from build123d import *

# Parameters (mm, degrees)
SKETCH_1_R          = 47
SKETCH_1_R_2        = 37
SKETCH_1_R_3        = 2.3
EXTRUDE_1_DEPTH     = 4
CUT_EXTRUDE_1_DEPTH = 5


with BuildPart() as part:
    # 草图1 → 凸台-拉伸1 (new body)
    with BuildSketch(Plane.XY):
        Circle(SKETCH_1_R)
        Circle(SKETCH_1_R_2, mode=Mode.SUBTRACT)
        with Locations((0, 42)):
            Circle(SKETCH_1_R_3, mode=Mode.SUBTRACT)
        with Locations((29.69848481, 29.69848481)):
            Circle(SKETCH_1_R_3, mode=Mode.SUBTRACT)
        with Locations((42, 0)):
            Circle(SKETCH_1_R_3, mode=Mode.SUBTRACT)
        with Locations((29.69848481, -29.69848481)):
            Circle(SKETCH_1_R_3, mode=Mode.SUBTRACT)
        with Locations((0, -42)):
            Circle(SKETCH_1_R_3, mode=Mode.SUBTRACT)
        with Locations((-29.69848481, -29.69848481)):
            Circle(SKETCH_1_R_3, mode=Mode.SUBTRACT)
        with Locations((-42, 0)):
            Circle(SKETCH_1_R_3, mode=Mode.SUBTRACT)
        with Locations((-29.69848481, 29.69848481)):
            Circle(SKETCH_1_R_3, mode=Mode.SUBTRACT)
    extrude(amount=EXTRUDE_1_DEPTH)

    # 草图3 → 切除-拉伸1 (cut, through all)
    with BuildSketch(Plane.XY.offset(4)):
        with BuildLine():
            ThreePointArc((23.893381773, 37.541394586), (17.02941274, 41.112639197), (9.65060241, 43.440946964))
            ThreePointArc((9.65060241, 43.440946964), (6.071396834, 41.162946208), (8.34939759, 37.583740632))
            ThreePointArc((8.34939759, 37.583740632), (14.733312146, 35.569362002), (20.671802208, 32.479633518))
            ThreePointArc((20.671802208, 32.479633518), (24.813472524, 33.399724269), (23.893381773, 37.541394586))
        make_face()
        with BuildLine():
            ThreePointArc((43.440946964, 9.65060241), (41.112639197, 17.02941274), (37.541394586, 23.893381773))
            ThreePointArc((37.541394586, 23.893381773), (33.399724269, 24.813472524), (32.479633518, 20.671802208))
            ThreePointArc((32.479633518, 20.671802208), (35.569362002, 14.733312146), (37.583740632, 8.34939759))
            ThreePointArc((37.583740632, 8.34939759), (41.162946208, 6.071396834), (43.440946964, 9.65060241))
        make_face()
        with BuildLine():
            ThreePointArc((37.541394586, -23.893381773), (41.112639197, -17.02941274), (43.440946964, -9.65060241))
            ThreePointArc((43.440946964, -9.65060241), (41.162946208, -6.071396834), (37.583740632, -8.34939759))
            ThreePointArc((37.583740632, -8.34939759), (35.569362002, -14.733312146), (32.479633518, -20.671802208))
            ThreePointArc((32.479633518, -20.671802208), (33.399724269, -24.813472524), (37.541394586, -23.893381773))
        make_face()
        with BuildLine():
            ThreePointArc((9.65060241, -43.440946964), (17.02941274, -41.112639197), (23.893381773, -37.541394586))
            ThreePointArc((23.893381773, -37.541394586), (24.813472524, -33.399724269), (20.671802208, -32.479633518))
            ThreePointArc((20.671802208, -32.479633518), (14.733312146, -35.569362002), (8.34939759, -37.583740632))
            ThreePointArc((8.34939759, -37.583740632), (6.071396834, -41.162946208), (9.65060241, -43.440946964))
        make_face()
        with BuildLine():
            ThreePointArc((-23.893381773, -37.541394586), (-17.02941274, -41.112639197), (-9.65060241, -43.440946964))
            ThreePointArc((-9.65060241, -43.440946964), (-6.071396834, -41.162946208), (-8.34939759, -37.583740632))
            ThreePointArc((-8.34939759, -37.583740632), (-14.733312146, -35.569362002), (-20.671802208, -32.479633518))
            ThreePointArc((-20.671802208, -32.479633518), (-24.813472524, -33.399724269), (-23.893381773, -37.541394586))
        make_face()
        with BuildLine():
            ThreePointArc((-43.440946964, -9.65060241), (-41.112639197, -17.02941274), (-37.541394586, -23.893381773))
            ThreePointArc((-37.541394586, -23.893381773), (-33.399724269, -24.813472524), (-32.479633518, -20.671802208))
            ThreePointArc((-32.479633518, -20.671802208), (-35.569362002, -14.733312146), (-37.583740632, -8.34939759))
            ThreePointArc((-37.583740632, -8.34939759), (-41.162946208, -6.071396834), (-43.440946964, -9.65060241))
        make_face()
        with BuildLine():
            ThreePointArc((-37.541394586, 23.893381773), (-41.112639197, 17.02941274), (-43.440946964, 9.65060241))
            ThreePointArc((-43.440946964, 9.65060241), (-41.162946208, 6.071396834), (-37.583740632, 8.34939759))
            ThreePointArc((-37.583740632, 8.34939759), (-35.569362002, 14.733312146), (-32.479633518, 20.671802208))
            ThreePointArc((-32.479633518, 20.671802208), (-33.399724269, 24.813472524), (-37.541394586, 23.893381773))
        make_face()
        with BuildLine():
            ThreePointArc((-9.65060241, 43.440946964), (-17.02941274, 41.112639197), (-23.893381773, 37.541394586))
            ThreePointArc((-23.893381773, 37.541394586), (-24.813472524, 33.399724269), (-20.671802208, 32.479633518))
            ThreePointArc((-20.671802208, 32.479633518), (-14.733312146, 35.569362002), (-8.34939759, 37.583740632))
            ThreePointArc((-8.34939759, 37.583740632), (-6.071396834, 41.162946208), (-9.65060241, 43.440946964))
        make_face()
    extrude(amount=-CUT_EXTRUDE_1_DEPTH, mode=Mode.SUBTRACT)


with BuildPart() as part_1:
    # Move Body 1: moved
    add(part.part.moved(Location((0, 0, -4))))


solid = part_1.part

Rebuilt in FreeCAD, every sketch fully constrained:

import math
import FreeCAD as App
import Part
import Sketcher
Q = App.Units.Quantity

doc = App.newDocument("Part")
body = doc.addObject("PartDesign::Body", "Body")

# Sketch on XY plane
sketch1 = doc.addObject("Sketcher::SketchObject", "Sketch")
body.addObject(sketch1)
sketch1.AttachmentSupport = (doc.XY_Plane, [""])
sketch1.MapMode = "FlatFace"
sketch1.addGeometry([
    Part.Circle(App.Vector(0, 0, 0), App.Vector(0, 0, 1), 47),  # 0
    Part.Circle(App.Vector(-29.7, -29.7, 0), App.Vector(0, 0, 1), 2.3),  # 1
    Part.Circle(App.Vector(0, -42, 0), App.Vector(0, 0, 1), 2.3),  # 2
    Part.Circle(App.Vector(29.7, -29.7, 0), App.Vector(0, 0, 1), 2.3),  # 3
    Part.Circle(App.Vector(-42, 0, 0), App.Vector(0, 0, 1), 2.3),  # 4
    Part.Circle(App.Vector(-29.7, 29.7, 0), App.Vector(0, 0, 1), 2.3),  # 5
    Part.Circle(App.Vector(0, 0, 0), App.Vector(0, 0, 1), 37),  # 6
    Part.Circle(App.Vector(42, 0, 0), App.Vector(0, 0, 1), 2.3),  # 7
    Part.Circle(App.Vector(0, 42, 0), App.Vector(0, 0, 1), 2.3),  # 8
    Part.Circle(App.Vector(29.7, 29.7, 0), App.Vector(0, 0, 1), 2.3),  # 9
], False)
sketch1.addConstraint([
    Sketcher.Constraint("Coincident", 0, 3, -1, 1),
    Sketcher.Constraint("Coincident", 6, 3, -1, 1),
    Sketcher.Constraint("Equal", 1, 2),
    Sketcher.Constraint("Equal", 2, 3),
    Sketcher.Constraint("Equal", 3, 4),
    Sketcher.Constraint("Equal", 4, 5),
    Sketcher.Constraint("Equal", 5, 7),
    Sketcher.Constraint("Equal", 7, 8),
    Sketcher.Constraint("Equal", 8, 9),
    Sketcher.Constraint("Symmetric", 3, 3, 5, 3, -1, 1),
    Sketcher.Constraint("Symmetric", 4, 3, 7, 3, -1, 1),
    Sketcher.Constraint("Symmetric", 2, 3, 8, 3, -1, 1),
    Sketcher.Constraint("Symmetric", 1, 3, 9, 3, -1, 1),
    Sketcher.Constraint("Symmetric", 1, 3, 3, 3, -2),
    Sketcher.Constraint("PointOnObject", 2, 3, -2),
    Sketcher.Constraint("PointOnObject", 4, 3, -1),
    Sketcher.Constraint("Diameter", 0, Q("94 mm")),
    Sketcher.Constraint("Diameter", 6, Q("74 mm")),
    Sketcher.Constraint("Diameter", 1, Q("4.6 mm")),
    Sketcher.Constraint("DistanceY", 2, 3, -1, 1, Q("42 mm")),
    Sketcher.Constraint("DistanceX", 4, 3, -1, 1, Q("42 mm")),
    Sketcher.Constraint("DistanceX", 1, 3, 3, 3, Q("59.39697 mm")),
    Sketcher.Constraint("DistanceY", 1, 3, 5, 3, Q("59.39697 mm")),
])
pad1 = doc.addObject("PartDesign::Pad", "Pad")
body.addObject(pad1)
pad1.Profile = sketch1
pad1.Length = 4

# Sketch on XY plane
sketch2 = doc.addObject("Sketcher::SketchObject", "Sketch001")
body.addObject(sketch2)
sketch2.AttachmentSupport = (doc.XY_Plane, [""])
sketch2.MapMode = "FlatFace"
sketch2.AttachmentOffset = App.Placement(App.Vector(0, 0, 4), App.Rotation())
sketch2.addGeometry([
    Part.ArcOfCircle(Part.Circle(App.Vector(0, 0, 0), App.Vector(0, 0, 1), 44.5), math.radians(57.53), math.radians(77.47)),  # 0
    Part.ArcOfCircle(Part.Circle(App.Vector(9, 40.5, 0), App.Vector(0, 0, 1), 3), math.radians(77), math.radians(257)),  # 1
    Part.ArcOfCircle(Part.Circle(App.Vector(0, 0, 0), App.Vector(0, 0, 1), 38.5), math.radians(57.53), math.radians(77.47)),  # 2
    Part.ArcOfCircle(Part.Circle(App.Vector(22.3, 35, 0), App.Vector(0, 0, 1), 3), math.radians(-122), math.radians(58)),  # 3
    Part.ArcOfCircle(Part.Circle(App.Vector(0, 0, 0), App.Vector(0, 0, 1), 44.5), math.radians(12.53), math.radians(32.47)),  # 4
    Part.ArcOfCircle(Part.Circle(App.Vector(35, 22.3, 0), App.Vector(0, 0, 1), 3), math.radians(32), math.radians(212)),  # 5
    Part.ArcOfCircle(Part.Circle(App.Vector(0, 0, 0), App.Vector(0, 0, 1), 38.5), math.radians(12.53), math.radians(32.47)),  # 6
    Part.ArcOfCircle(Part.Circle(App.Vector(40.5, 9, 0), App.Vector(0, 0, 1), 3), math.radians(-167), math.radians(13)),  # 7
    Part.ArcOfCircle(Part.Circle(App.Vector(0, 0, 0), App.Vector(0, 0, 1), 44.5), math.radians(-32.47), math.radians(-12.53)),  # 8
    Part.ArcOfCircle(Part.Circle(App.Vector(40.5, -9, 0), App.Vector(0, 0, 1), 3), math.radians(-13), math.radians(167)),  # 9
    Part.ArcOfCircle(Part.Circle(App.Vector(0, 0, 0), App.Vector(0, 0, 1), 38.5), math.radians(-32.47), math.radians(-12.53)),  # 10
    Part.ArcOfCircle(Part.Circle(App.Vector(35, -22.3, 0), App.Vector(0, 0, 1), 3), math.radians(148), math.radians(328)),  # 11
    Part.ArcOfCircle(Part.Circle(App.Vector(0, 0, 0), App.Vector(0, 0, 1), 44.5), math.radians(-77.47), math.radians(-57.53)),  # 12
    Part.ArcOfCircle(Part.Circle(App.Vector(22.3, -35, 0), App.Vector(0, 0, 1), 3), math.radians(-58), math.radians(122)),  # 13
    Part.ArcOfCircle(Part.Circle(App.Vector(0, 0, 0), App.Vector(0, 0, 1), 38.5), math.radians(-77.47), math.radians(-57.53)),  # 14
    Part.ArcOfCircle(Part.Circle(App.Vector(9, -40.5, 0), App.Vector(0, 0, 1), 3), math.radians(103), math.radians(283)),  # 15
    Part.ArcOfCircle(Part.Circle(App.Vector(0, 0, 0), App.Vector(0, 0, 1), 44.5), math.radians(-122.47), math.radians(-102.53)),  # 16
    Part.ArcOfCircle(Part.Circle(App.Vector(-9, -40.5, 0), App.Vector(0, 0, 1), 3), math.radians(-103), math.radians(77)),  # 17
    Part.ArcOfCircle(Part.Circle(App.Vector(0, 0, 0), App.Vector(0, 0, 1), 38.5), math.radians(-122.47), math.radians(-102.53)),  # 18
    Part.ArcOfCircle(Part.Circle(App.Vector(-22.3, -35, 0), App.Vector(0, 0, 1), 3), math.radians(58), math.radians(238)),  # 19
    Part.ArcOfCircle(Part.Circle(App.Vector(0, 0, 0), App.Vector(0, 0, 1), 44.5), math.radians(-167.47), math.radians(-147.53)),  # 20
    Part.ArcOfCircle(Part.Circle(App.Vector(-35, -22.3, 0), App.Vector(0, 0, 1), 3), math.radians(-148), math.radians(32)),  # 21
    Part.ArcOfCircle(Part.Circle(App.Vector(0, 0, 0), App.Vector(0, 0, 1), 38.5), math.radians(-167.47), math.radians(-147.53)),  # 22
    Part.ArcOfCircle(Part.Circle(App.Vector(-40.5, -9, 0), App.Vector(0, 0, 1), 3), math.radians(13), math.radians(193)),  # 23
    Part.ArcOfCircle(Part.Circle(App.Vector(0, 0, 0), App.Vector(0, 0, 1), 44.5), math.radians(147.53), math.radians(167.47)),  # 24
    Part.ArcOfCircle(Part.Circle(App.Vector(-40.5, 9, 0), App.Vector(0, 0, 1), 3), math.radians(167), math.radians(347)),  # 25
    Part.ArcOfCircle(Part.Circle(App.Vector(0, 0, 0), App.Vector(0, 0, 1), 38.5), math.radians(147.53), math.radians(167.47)),  # 26
    Part.ArcOfCircle(Part.Circle(App.Vector(-35, 22.3, 0), App.Vector(0, 0, 1), 3), math.radians(-32), math.radians(148)),  # 27
    Part.ArcOfCircle(Part.Circle(App.Vector(0, 0, 0), App.Vector(0, 0, 1), 44.5), math.radians(102.53), math.radians(122.47)),  # 28
    Part.ArcOfCircle(Part.Circle(App.Vector(-22.3, 35, 0), App.Vector(0, 0, 1), 3), math.radians(122), math.radians(302)),  # 29
    Part.ArcOfCircle(Part.Circle(App.Vector(0, 0, 0), App.Vector(0, 0, 1), 38.5), math.radians(102.53), math.radians(122.47)),  # 30
    Part.ArcOfCircle(Part.Circle(App.Vector(-9, 40.5, 0), App.Vector(0, 0, 1), 3), math.radians(-77), math.radians(103)),  # 31
], False)
sketch2.addConstraint([
    Sketcher.Constraint("Tangent", 0, 2, 1, 1),
    Sketcher.Constraint("Tangent", 1, 2, 2, 2),
    Sketcher.Constraint("Tangent", 2, 1, 3, 1),
    Sketcher.Constraint("Tangent", 3, 2, 0, 1),
    Sketcher.Constraint("Tangent", 4, 2, 5, 1),
    Sketcher.Constraint("Tangent", 5, 2, 6, 2),
    Sketcher.Constraint("Tangent", 6, 1, 7, 1),
    Sketcher.Constraint("Tangent", 7, 2, 4, 1),
    Sketcher.Constraint("Tangent", 8, 2, 9, 1),
    Sketcher.Constraint("Tangent", 9, 2, 10, 2),
    Sketcher.Constraint("Tangent", 10, 1, 11, 1),
    Sketcher.Constraint("Tangent", 11, 2, 8, 1),
    Sketcher.Constraint("Tangent", 12, 2, 13, 1),
    Sketcher.Constraint("Tangent", 13, 2, 14, 2),
    Sketcher.Constraint("Tangent", 14, 1, 15, 1),
    Sketcher.Constraint("Tangent", 15, 2, 12, 1),
    Sketcher.Constraint("Tangent", 16, 2, 17, 1),
    Sketcher.Constraint("Tangent", 17, 2, 18, 2),
    Sketcher.Constraint("Tangent", 18, 1, 19, 1),
    Sketcher.Constraint("Tangent", 19, 2, 16, 1),
    Sketcher.Constraint("Tangent", 20, 2, 21, 1),
    Sketcher.Constraint("Tangent", 21, 2, 22, 2),
    Sketcher.Constraint("Tangent", 22, 1, 23, 1),
    Sketcher.Constraint("Tangent", 23, 2, 20, 1),
    Sketcher.Constraint("Tangent", 24, 2, 25, 1),
    Sketcher.Constraint("Tangent", 25, 2, 26, 2),
    Sketcher.Constraint("Tangent", 26, 1, 27, 1),
    Sketcher.Constraint("Tangent", 27, 2, 24, 1),
    Sketcher.Constraint("Tangent", 28, 2, 29, 1),
    Sketcher.Constraint("Tangent", 29, 2, 30, 2),
    Sketcher.Constraint("Tangent", 30, 1, 31, 1),
    Sketcher.Constraint("Tangent", 31, 2, 28, 1),
    Sketcher.Constraint("Coincident", 0, 3, -1, 1),
    Sketcher.Constraint("Coincident", 2, 3, -1, 1),
    Sketcher.Constraint("Coincident", 4, 3, -1, 1),
    Sketcher.Constraint("Coincident", 6, 3, -1, 1),
    Sketcher.Constraint("Coincident", 8, 3, -1, 1),
    Sketcher.Constraint("Coincident", 10, 3, -1, 1),
    Sketcher.Constraint("Coincident", 12, 3, -1, 1),
    Sketcher.Constraint("Coincident", 14, 3, -1, 1),
    Sketcher.Constraint("Coincident", 16, 3, -1, 1),
    Sketcher.Constraint("Coincident", 18, 3, -1, 1),
    Sketcher.Constraint("Coincident", 20, 3, -1, 1),
    Sketcher.Constraint("Coincident", 22, 3, -1, 1),
    Sketcher.Constraint("Coincident", 24, 3, -1, 1),
    Sketcher.Constraint("Coincident", 26, 3, -1, 1),
    Sketcher.Constraint("Coincident", 28, 3, -1, 1),
    Sketcher.Constraint("Coincident", 30, 3, -1, 1),
    Sketcher.Constraint("Equal", 0, 4),
    Sketcher.Constraint("Equal", 3, 5),
    Sketcher.Constraint("Equal", 4, 8),
    Sketcher.Constraint("Equal", 7, 9),
    Sketcher.Constraint("Equal", 8, 12),
    Sketcher.Constraint("Equal", 11, 13),
    Sketcher.Constraint("Equal", 12, 16),
    Sketcher.Constraint("Equal", 15, 17),
    Sketcher.Constraint("Equal", 16, 20),
    Sketcher.Constraint("Equal", 19, 21),
    Sketcher.Constraint("Equal", 20, 24),
    Sketcher.Constraint("Equal", 23, 25),
    Sketcher.Constraint("Equal", 24, 28),
    Sketcher.Constraint("Equal", 27, 29),
    Sketcher.Constraint("Horizontal", 15, 3, 17, 3),
    Sketcher.Constraint("Horizontal", 13, 3, 19, 3),
    Sketcher.Constraint("Horizontal", 11, 3, 21, 3),
    Sketcher.Constraint("Horizontal", 9, 3, 23, 3),
    Sketcher.Constraint("Horizontal", 7, 3, 25, 3),
    Sketcher.Constraint("Horizontal", 5, 3, 27, 3),
    Sketcher.Constraint("Horizontal", 3, 3, 29, 3),
    Sketcher.Constraint("Horizontal", 1, 3, 31, 3),
    Sketcher.Constraint("Vertical", 7, 3, 9, 3),
    Sketcher.Constraint("Vertical", 5, 3, 11, 3),
    Sketcher.Constraint("Vertical", 3, 3, 13, 3),
    Sketcher.Constraint("Vertical", 1, 3, 15, 3),
    Sketcher.Constraint("Radius", 1, Q("3 mm")),
    Sketcher.Constraint("Radius", 0, Q("44.5 mm")),
    Sketcher.Constraint("DistanceX", -1, 1, 1, 3, Q("9 mm")),
    Sketcher.Constraint("DistanceY", -1, 1, 7, 3, Q("9 mm")),
    Sketcher.Constraint("DistanceX", -1, 1, 3, 3, Q("22.282592 mm")),
    Sketcher.Constraint("DistanceY", -1, 1, 5, 3, Q("22.282592 mm")),
])
pocket1 = doc.addObject("PartDesign::Pocket", "Pocket")
body.addObject(pocket1)
pocket1.Profile = sketch2
pocket1.Type = "ThroughAll"
body2 = doc.addObject("PartDesign::Body", "Body001")
doc.recompute()

body.Placement = App.Placement(App.Vector(0, 0, -4), App.Rotation(App.Vector(0, 0, 1), 0))
boolean = doc.addObject("PartDesign::Boolean", "Boolean")
body2.addObject(boolean)
boolean.Type = "Fuse"
boolean.addObjects([body])

doc.recompute()
